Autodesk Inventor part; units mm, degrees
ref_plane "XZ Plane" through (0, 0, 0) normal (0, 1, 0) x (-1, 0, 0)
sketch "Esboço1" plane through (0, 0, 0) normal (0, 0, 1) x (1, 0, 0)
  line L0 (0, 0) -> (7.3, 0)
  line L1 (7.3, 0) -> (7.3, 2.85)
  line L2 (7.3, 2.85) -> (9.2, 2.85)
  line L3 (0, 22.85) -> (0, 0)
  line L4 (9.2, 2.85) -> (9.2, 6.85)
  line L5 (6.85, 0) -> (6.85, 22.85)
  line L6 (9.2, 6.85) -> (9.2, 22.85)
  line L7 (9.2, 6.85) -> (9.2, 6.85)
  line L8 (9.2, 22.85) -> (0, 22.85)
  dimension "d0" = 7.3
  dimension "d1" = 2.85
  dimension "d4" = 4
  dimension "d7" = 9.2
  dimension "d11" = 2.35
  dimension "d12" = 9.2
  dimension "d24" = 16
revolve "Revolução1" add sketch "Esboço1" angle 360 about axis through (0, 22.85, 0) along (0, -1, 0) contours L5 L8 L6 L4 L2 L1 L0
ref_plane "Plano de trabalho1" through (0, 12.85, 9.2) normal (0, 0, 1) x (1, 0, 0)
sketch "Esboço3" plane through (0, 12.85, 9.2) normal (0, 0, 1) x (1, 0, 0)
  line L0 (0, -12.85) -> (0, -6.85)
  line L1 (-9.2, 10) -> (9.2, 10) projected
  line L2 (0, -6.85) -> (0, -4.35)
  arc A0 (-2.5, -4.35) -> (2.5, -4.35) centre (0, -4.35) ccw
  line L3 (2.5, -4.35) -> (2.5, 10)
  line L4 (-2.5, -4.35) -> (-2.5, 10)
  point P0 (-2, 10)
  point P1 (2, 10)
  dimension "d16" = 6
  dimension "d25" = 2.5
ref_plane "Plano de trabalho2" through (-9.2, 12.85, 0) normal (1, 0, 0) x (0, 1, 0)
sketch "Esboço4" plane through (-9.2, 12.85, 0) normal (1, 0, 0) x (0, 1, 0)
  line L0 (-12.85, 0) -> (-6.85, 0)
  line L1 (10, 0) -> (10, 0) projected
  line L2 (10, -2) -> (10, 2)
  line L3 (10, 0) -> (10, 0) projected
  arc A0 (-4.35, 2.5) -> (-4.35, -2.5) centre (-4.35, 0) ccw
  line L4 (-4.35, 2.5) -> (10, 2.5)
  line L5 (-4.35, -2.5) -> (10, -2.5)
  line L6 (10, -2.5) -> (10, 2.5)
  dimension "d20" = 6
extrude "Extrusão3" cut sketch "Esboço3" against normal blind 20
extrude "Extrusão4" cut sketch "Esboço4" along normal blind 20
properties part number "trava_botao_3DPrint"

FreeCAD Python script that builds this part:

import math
import FreeCAD as App
import Part
import Sketcher

doc = App.newDocument("Part")
body = doc.addObject("PartDesign::Body", "Body")

# Sketch on XY plane
sketch1 = doc.addObject("Sketcher::SketchObject", "Sketch")
body.addObject(sketch1)
sketch1.AttachmentSupport = (doc.XY_Plane, [""])
sketch1.MapMode = "FlatFace"
sketch1.addGeometry(Part.LineSegment(App.Vector(6.85, 22.85, 0), App.Vector(6.85, 0, 0)), False)
sketch1.addGeometry(Part.LineSegment(App.Vector(6.85, 0, 0), App.Vector(7.3, 0, 0)), False)
sketch1.addGeometry(Part.LineSegment(App.Vector(7.3, 0, 0), App.Vector(7.3, 2.85, 0)), False)
sketch1.addGeometry(Part.LineSegment(App.Vector(7.3, 2.85, 0), App.Vector(9.2, 2.85, 0)), False)
sketch1.addGeometry(Part.LineSegment(App.Vector(9.2, 2.85, 0), App.Vector(9.2, 22.85, 0)), False)
sketch1.addGeometry(Part.LineSegment(App.Vector(9.2, 22.85, 0), App.Vector(6.85, 22.85, 0)), False)
sketch1.addConstraint(Sketcher.Constraint("Coincident", 0, 2, 1, 1))
sketch1.addConstraint(Sketcher.Constraint("Coincident", 1, 2, 2, 1))
sketch1.addConstraint(Sketcher.Constraint("Coincident", 2, 2, 3, 1))
sketch1.addConstraint(Sketcher.Constraint("Coincident", 3, 2, 4, 1))
sketch1.addConstraint(Sketcher.Constraint("Coincident", 4, 2, 5, 1))
sketch1.addConstraint(Sketcher.Constraint("Coincident", 5, 2, 0, 1))
sketch1.addConstraint(Sketcher.Constraint("Vertical", 0))
sketch1.addConstraint(Sketcher.Constraint("Horizontal", 1))
sketch1.addConstraint(Sketcher.Constraint("Vertical", 2))
sketch1.addConstraint(Sketcher.Constraint("Horizontal", 3))
sketch1.addConstraint(Sketcher.Constraint("Vertical", 4))
sketch1.addConstraint(Sketcher.Constraint("Horizontal", 5))
sketch1.addConstraint(Sketcher.Constraint("PointOnObject", 0, 2, -1))
sketch1.addConstraint(Sketcher.Constraint("DistanceX", 5, 2, 5, 1, 2.35))
sketch1.addConstraint(Sketcher.Constraint("DistanceY", 2, 1, 2, 2, 2.85))
sketch1.addConstraint(Sketcher.Constraint("DistanceX", -1, 1, 1, 2, 7.3))
sketch1.addConstraint(Sketcher.Constraint("DistanceX", -1, 1, 3, 2, 9.2))
sketch1.addConstraint(Sketcher.Constraint("DistanceY", 4, 1, 4, 2, 20.0))
revolution = doc.addObject("PartDesign::Revolution", "Revolution")
body.addObject(revolution)
revolution.Profile = sketch1
revolution.ReferenceAxis = (sketch1, ["V_Axis"])
revolution.Angle = 360

# Sketch on XY plane
sketch2 = doc.addObject("Sketcher::SketchObject", "Sketch001")
body.addObject(sketch2)
sketch2.AttachmentSupport = (doc.XY_Plane, [""])
sketch2.MapMode = "FlatFace"
sketch2.AttachmentOffset = App.Placement(App.Vector(0, 0, 9.2), App.Rotation())
sketch2.addGeometry(Part.LineSegment(App.Vector(2.5, 22.9, 0), App.Vector(-2.5, 22.9, 0)), False)
sketch2.addGeometry(Part.LineSegment(App.Vector(-2.5, 22.9, 0), App.Vector(-2.5, 8.5, 0)), False)
sketch2.addGeometry(Part.ArcOfCircle(Part.Circle(App.Vector(0, 8.5, 0), App.Vector(0, 0, 1), 2.5), math.radians(180), math.radians(360)), False)
sketch2.addGeometry(Part.LineSegment(App.Vector(2.5, 8.5, 0), App.Vector(2.5, 22.9, 0)), False)
sketch2.addConstraint(Sketcher.Constraint("Coincident", 0, 2, 1, 1))
sketch2.addConstraint(Sketcher.Constraint("Tangent", 1, 2, 2, 1))
sketch2.addConstraint(Sketcher.Constraint("Tangent", 2, 2, 3, 1))
sketch2.addConstraint(Sketcher.Constraint("Coincident", 3, 2, 0, 1))
sketch2.addConstraint(Sketcher.Constraint("Horizontal", 0))
sketch2.addConstraint(Sketcher.Constraint("Vertical", 1))
sketch2.addConstraint(Sketcher.Constraint("Vertical", 3))
sketch2.addConstraint(Sketcher.Constraint("PointOnObject", 2, 3, -2))
sketch2.addConstraint(Sketcher.Constraint("Radius", 2, 2.5))
sketch2.addConstraint(Sketcher.Constraint("DistanceY", 1, 2, 1, 1, 14.35))
sketch2.addConstraint(Sketcher.Constraint("DistanceY", -1, 1, 2, 3, 8.5))
pocket1 = doc.addObject("PartDesign::Pocket", "Pocket")
body.addObject(pocket1)
pocket1.Profile = sketch2
pocket1.Length = 20

# Sketch on YZ plane
sketch3 = doc.addObject("Sketcher::SketchObject", "Sketch002")
body.addObject(sketch3)
sketch3.AttachmentSupport = (doc.YZ_Plane, [""])
sketch3.MapMode = "FlatFace"
sketch3.AttachmentOffset = App.Placement(App.Vector(0, 0, -9.2), App.Rotation())
sketch3.addGeometry(Part.LineSegment(App.Vector(22.9, -2.5, 0), App.Vector(22.9, 2.5, 0)), False)
sketch3.addGeometry(Part.LineSegment(App.Vector(22.9, 2.5, 0), App.Vector(8.5, 2.5, 0)), False)
sketch3.addGeometry(Part.ArcOfCircle(Part.Circle(App.Vector(8.5, 0, 0), App.Vector(0, 0, 1), 2.5), math.radians(90), math.radians(270)), False)
sketch3.addGeometry(Part.LineSegment(App.Vector(8.5, -2.5, 0), App.Vector(22.9, -2.5, 0)), False)
sketch3.addConstraint(Sketcher.Constraint("Coincident", 0, 2, 1, 1))
sketch3.addConstraint(Sketcher.Constraint("Tangent", 1, 2, 2, 1))
sketch3.addConstraint(Sketcher.Constraint("Tangent", 2, 2, 3, 1))
sketch3.addConstraint(Sketcher.Constraint("Coincident", 3, 2, 0, 1))
sketch3.addConstraint(Sketcher.Constraint("Vertical", 0))
sketch3.addConstraint(Sketcher.Constraint("Horizontal", 1))
sketch3.addConstraint(Sketcher.Constraint("Horizontal", 3))
sketch3.addConstraint(Sketcher.Constraint("PointOnObject", 2, 3, -1))
sketch3.addConstraint(Sketcher.Constraint("Radius", 2, 2.5))
sketch3.addConstraint(Sketcher.Constraint("DistanceX", 1, 2, 1, 1, 14.35))
sketch3.addConstraint(Sketcher.Constraint("DistanceX", -1, 1, 2, 3, 8.5))
pocket2 = doc.addObject("PartDesign::Pocket", "Pocket001")
body.addObject(pocket2)
pocket2.Profile = sketch3
pocket2.Length = 20
pocket2.Reversed = True

doc.recompute()
